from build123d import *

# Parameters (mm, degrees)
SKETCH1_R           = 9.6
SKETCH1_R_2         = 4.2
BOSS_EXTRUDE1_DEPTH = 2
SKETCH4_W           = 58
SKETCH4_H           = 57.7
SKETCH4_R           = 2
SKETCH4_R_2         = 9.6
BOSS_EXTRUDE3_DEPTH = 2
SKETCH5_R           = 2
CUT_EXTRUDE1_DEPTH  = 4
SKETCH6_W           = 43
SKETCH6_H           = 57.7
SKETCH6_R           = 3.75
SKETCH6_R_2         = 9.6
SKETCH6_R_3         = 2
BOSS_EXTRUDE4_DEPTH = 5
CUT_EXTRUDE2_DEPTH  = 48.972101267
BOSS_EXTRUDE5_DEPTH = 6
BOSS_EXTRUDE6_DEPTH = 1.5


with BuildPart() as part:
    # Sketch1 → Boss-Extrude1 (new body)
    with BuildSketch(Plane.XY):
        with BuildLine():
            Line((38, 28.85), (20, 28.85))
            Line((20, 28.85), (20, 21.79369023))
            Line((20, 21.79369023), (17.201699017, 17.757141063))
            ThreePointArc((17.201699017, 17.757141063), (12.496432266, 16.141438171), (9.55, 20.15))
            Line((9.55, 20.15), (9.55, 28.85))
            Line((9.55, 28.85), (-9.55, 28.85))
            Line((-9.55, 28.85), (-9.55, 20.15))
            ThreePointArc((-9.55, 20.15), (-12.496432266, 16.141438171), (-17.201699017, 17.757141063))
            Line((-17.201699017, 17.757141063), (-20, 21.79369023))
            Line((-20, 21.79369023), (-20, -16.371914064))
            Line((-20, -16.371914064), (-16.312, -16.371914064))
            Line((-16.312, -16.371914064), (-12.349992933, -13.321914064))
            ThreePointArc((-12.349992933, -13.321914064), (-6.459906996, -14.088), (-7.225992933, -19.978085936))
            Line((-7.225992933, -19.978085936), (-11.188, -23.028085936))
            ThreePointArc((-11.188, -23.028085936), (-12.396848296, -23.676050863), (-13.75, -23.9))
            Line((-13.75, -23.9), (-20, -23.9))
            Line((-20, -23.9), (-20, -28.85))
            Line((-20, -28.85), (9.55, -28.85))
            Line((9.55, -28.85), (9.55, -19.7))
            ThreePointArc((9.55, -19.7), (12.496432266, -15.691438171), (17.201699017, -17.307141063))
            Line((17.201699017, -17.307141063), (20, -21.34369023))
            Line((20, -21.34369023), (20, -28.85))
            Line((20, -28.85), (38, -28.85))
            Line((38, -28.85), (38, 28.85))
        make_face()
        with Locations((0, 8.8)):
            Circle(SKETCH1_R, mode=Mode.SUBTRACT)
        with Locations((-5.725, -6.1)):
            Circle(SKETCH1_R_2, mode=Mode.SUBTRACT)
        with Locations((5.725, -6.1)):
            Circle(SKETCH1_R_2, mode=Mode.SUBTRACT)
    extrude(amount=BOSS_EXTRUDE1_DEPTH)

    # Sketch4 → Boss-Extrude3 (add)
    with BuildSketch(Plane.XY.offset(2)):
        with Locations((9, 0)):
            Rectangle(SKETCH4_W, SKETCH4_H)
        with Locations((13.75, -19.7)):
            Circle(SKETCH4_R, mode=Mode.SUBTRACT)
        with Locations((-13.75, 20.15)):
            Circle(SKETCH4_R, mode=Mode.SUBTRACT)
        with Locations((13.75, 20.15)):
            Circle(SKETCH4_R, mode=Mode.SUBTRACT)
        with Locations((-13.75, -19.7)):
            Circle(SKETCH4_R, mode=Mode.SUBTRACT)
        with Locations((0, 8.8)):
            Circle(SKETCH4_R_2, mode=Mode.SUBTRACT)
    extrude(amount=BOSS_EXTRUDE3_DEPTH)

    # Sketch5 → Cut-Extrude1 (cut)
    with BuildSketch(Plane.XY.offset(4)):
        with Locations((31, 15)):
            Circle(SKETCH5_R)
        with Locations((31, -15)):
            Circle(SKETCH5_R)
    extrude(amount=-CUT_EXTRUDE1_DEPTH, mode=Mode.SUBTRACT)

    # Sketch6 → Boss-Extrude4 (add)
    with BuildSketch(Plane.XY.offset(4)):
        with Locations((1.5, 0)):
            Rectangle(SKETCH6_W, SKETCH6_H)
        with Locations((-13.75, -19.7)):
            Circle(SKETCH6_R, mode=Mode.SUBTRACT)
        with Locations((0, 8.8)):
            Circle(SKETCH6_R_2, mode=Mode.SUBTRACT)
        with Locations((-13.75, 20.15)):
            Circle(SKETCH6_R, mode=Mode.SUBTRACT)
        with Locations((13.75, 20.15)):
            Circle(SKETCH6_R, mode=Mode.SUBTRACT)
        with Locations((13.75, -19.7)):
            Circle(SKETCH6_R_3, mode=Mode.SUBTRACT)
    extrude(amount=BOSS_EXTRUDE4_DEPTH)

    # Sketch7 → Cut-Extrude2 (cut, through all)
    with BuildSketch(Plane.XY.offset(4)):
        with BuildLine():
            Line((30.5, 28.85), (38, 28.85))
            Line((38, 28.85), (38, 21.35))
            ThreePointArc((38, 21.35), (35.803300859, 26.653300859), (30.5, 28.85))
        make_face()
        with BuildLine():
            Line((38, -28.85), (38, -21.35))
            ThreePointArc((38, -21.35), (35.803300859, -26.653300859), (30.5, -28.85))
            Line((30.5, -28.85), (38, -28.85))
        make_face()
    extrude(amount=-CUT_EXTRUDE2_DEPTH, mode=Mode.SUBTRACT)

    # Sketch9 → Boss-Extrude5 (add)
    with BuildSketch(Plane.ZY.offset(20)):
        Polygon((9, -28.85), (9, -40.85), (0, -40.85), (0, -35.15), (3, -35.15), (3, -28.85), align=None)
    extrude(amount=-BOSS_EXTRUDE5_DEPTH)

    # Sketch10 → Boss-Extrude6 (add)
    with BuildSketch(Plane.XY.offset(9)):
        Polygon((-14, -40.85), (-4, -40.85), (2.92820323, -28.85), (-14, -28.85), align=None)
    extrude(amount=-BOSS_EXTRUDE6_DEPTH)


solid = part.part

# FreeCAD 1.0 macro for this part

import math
import FreeCAD as App
import Part
import Sketcher

V = App.Vector
Q = App.Units.Quantity

doc = App.newDocument("Part")
params = doc.addObject("Spreadsheet::Sheet", "Params")
for row, (alias, value) in enumerate([
    ("sketch1_diameter", "8.4 mm"),
    ("sketch1_diameter2", "19.2 mm"),
    ("sketch1_width", "18 mm"),
    ("sketch1_length", "5 mm"),
    ("sketch1_width2", "19.1 mm"),
    ("pad1_length", "2 mm"),
    ("sketch2_diameter", "4 mm"),
    ("sketch2_diameter2", "19.2 mm"),
    ("sketch2_width", "58 mm"),
    ("sketch2_height", "57.7 mm"),
    ("pad2_length", "2 mm"),
    ("sketch3_diameter", "4 mm"),
    ("pocket1_length", "4 mm"),
    ("sketch4_diameter", "4 mm"),
    ("sketch4_diameter2", "7.5 mm"),
    ("sketch4_diameter3", "19.2 mm"),
    ("sketch4_width", "43 mm"),
    ("sketch4_height", "57.7 mm"),
    ("pad3_length", "5 mm"),
    ("sketch5_radius", "7.5 mm"),
    ("sketch6_width", "12 mm"),
    ("sketch6_height", "6 mm"),
    ("sketch6_height2", "3 mm"),
    ("sketch6_width2", "6.3 mm"),
    ("pad4_length", "6 mm"),
    ("sketch7_width", "10 mm"),
    ("sketch7_height", "12 mm"),
    ("pad5_length", "1.5 mm"),
], start=1):
    params.set(f"A{row}", alias)
    params.set(f"B{row}", "=" + value)
    params.setAlias(f"B{row}", alias)

body = doc.addObject("PartDesign::Body", "Body")

sketch1 = body.newObject("Sketcher::SketchObject", "Sketch")
sketch1.AttachmentSupport = (doc.getObject("XY_Plane"), [""])
sketch1.MapMode = "FlatFace"
sketch1.addGeometry([
    Part.LineSegment(V(38, 28.85, 0), V(20, 28.85, 0)),
    Part.LineSegment(V(20, 28.85, 0), V(20, 21.79369, 0)),
    Part.LineSegment(V(20, 21.79369, 0), V(17.201699, 17.757141, 0)),
    Part.ArcOfCircle(Part.Circle(V(13.75, 20.15, 0), V(0, 0, 1), 4.2), math.radians(180), math.radians(325.268717)),
    Part.LineSegment(V(9.55, 20.15, 0), V(9.55, 28.85, 0)),
    Part.LineSegment(V(9.55, 28.85, 0), V(-9.55, 28.85, 0)),
    Part.LineSegment(V(-9.55, 28.85, 0), V(-9.55, 20.15, 0)),
    Part.ArcOfCircle(Part.Circle(V(-13.75, 20.15, 0), V(0, 0, 1), 4.2), math.radians(-145.268717), math.radians(0)),
    Part.LineSegment(V(-17.201699, 17.757141, 0), V(-20, 21.79369, 0)),
    Part.LineSegment(V(-20, 21.79369, 0), V(-20, -16.371914, 0)),
    Part.LineSegment(V(-20, -16.371914, 0), V(-16.312, -16.371914, 0)),
    Part.LineSegment(V(-16.312, -16.371914, 0), V(-12.349993, -13.321914, 0)),
    Part.ArcOfCircle(Part.Circle(V(-9.787993, -16.65, 0), V(0, 0, 1), 4.2), math.radians(-52.410497), math.radians(127.589503)),
    Part.LineSegment(V(-7.225993, -19.978086, 0), V(-11.188, -23.028086, 0)),
    Part.ArcOfCircle(Part.Circle(V(-13.75, -19.7, 0), V(0, 0, 1), 4.2), math.radians(-90), math.radians(-52.410497)),
    Part.LineSegment(V(-13.75, -23.9, 0), V(-20, -23.9, 0)),
    Part.LineSegment(V(-20, -23.9, 0), V(-20, -28.85, 0)),
    Part.LineSegment(V(-20, -28.85, 0), V(9.55, -28.85, 0)),
    Part.LineSegment(V(9.55, -28.85, 0), V(9.55, -19.7, 0)),
    Part.ArcOfCircle(Part.Circle(V(13.75, -19.7, 0), V(0, 0, 1), 4.2), math.radians(34.731283), math.radians(180)),
    Part.LineSegment(V(17.201699, -17.307141, 0), V(20, -21.34369, 0)),
    Part.LineSegment(V(20, -21.34369, 0), V(20, -28.85, 0)),
    Part.LineSegment(V(20, -28.85, 0), V(38, -28.85, 0)),
    Part.LineSegment(V(38, -28.85, 0), V(38, 28.85, 0)),
    Part.Circle(V(-5.725, -6.1, 0), V(0, 0, 1), 4.2),
    Part.Circle(V(5.725, -6.1, 0), V(0, 0, 1), 4.2),
    Part.Circle(V(0, 8.8, 0), V(0, 0, 1), 9.6),
], False)
sketch1.addConstraint([
    Sketcher.Constraint("Coincident", 0, 2, 1, 1),
    Sketcher.Constraint("Coincident", 1, 2, 2, 1),
    Sketcher.Constraint("Tangent", 2, 2, 3, 2),
    Sketcher.Constraint("Tangent", 3, 1, 4, 1),
    Sketcher.Constraint("Coincident", 4, 2, 5, 1),
    Sketcher.Constraint("Coincident", 5, 2, 6, 1),
    Sketcher.Constraint("Tangent", 6, 2, 7, 2),
    Sketcher.Constraint("Tangent", 7, 1, 8, 1),
    Sketcher.Constraint("Coincident", 8, 2, 9, 1),
    Sketcher.Constraint("Coincident", 9, 2, 10, 1),
    Sketcher.Constraint("Coincident", 10, 2, 11, 1),
    Sketcher.Constraint("Tangent", 11, 2, 12, 2),
    Sketcher.Constraint("Tangent", 12, 1, 13, 1),
    Sketcher.Constraint("Tangent", 13, 2, 14, 2),
    Sketcher.Constraint("Tangent", 14, 1, 15, 1),
    Sketcher.Constraint("Coincident", 15, 2, 16, 1),
    Sketcher.Constraint("Coincident", 16, 2, 17, 1),
    Sketcher.Constraint("Coincident", 17, 2, 18, 1),
    Sketcher.Constraint("Tangent", 18, 2, 19, 2),
    Sketcher.Constraint("Tangent", 19, 1, 20, 1),
    Sketcher.Constraint("Coincident", 20, 2, 21, 1),
    Sketcher.Constraint("Coincident", 21, 2, 22, 1),
    Sketcher.Constraint("Coincident", 22, 2, 23, 1),
    Sketcher.Constraint("Coincident", 23, 2, 0, 1),
    Sketcher.Constraint("Horizontal", 0),
    Sketcher.Constraint("Vertical", 1),
    Sketcher.Constraint("Vertical", 4),
    Sketcher.Constraint("Horizontal", 5),
    Sketcher.Constraint("Vertical", 6),
    Sketcher.Constraint("Vertical", 9),
    Sketcher.Constraint("Horizontal", 10),
    Sketcher.Constraint("Horizontal", 15),
    Sketcher.Constraint("Vertical", 16),
    Sketcher.Constraint("Horizontal", 17),
    Sketcher.Constraint("Vertical", 18),
    Sketcher.Constraint("Vertical", 21),
    Sketcher.Constraint("Horizontal", 22),
    Sketcher.Constraint("Vertical", 23),
    Sketcher.Constraint("Equal", 3, 7),
    Sketcher.Constraint("Equal", 7, 12),
    Sketcher.Constraint("Equal", 12, 14),
    Sketcher.Constraint("Equal", 14, 19),
    Sketcher.Constraint("Equal", 19, 24),
    Sketcher.Constraint("Equal", 24, 25),
    Sketcher.Constraint("Symmetric", 0, 2, 16, 2, -1, 1),
    Sketcher.Constraint("Symmetric", 5, 2, 17, 2, -1, 1),
    Sketcher.Constraint("Symmetric", 3, 3, 7, 3, -2),
    Sketcher.Constraint("Symmetric", 14, 3, 19, 3, -2),
    Sketcher.Constraint("Symmetric", 24, 3, 25, 3, -2),
    Sketcher.Constraint("Symmetric", 1, 2, 8, 2, -2),
    Sketcher.Constraint("Symmetric", 16, 2, 21, 2, -2),
    Sketcher.Constraint("PointOnObject", 26, 3, -2),
    Sketcher.Constraint("Parallel", 11, 13),
    Sketcher.Constraint("Parallel", 8, 20),
    Sketcher.Constraint("Equal", 11, 13),
    Sketcher.Constraint("Diameter", 24, 8.4),
    Sketcher.Constraint("Diameter", 26, 19.2),
    Sketcher.Constraint("DistanceX", 0, 2, 0, 1, 18.0),
    Sketcher.Constraint("Distance", 11, 5.0),
    Sketcher.Constraint("DistanceX", 5, 2, 5, 1, 19.1),
    Sketcher.Constraint("DistanceY", 4, 1, 4, 2, 8.7),
    Sketcher.Constraint("DistanceY", 23, 1, 23, 2, 57.7),
    Sketcher.Constraint("DistanceX", -1, 1, 0, 2, 20.0),
    Sketcher.Constraint("DistanceY", 16, 2, 16, 1, 4.95),
    Sketcher.Constraint("DistanceY", 24, 3, -1, 1, 6.1),
    Sketcher.Constraint("DistanceY", -1, 1, 26, 3, 8.8),
    Sketcher.Constraint("DistanceY", 12, 3, 7, 3, 36.8),
    Sketcher.Constraint("DistanceX", 24, 3, 25, 3, 11.45),
    Sketcher.Constraint("DistanceY", 1, 2, 1, 1, 7.05631),
])
sketch1.setExpression("Constraints[55]", "Params.sketch1_diameter")
sketch1.setExpression("Constraints[56]", "Params.sketch1_diameter2")
sketch1.setExpression("Constraints[57]", "Params.sketch1_width")
sketch1.setExpression("Constraints[58]", "Params.sketch1_length")
sketch1.setExpression("Constraints[59]", "Params.sketch1_width2")
pad1 = body.newObject("PartDesign::Pad", "Pad")
pad1.Profile = sketch1
pad1.setExpression("Length", "Params.pad1_length")

sketch2 = body.newObject("Sketcher::SketchObject", "Sketch001")
sketch2.AttachmentSupport = (doc.getObject("XY_Plane"), [""])
sketch2.MapMode = "FlatFace"
sketch2.AttachmentOffset = App.Placement(V(0, 0, 2), App.Rotation())
sketch2.addGeometry([
    Part.LineSegment(V(-20, 28.85, 0), V(-20, -28.85, 0)),
    Part.LineSegment(V(-20, -28.85, 0), V(38, -28.85, 0)),
    Part.LineSegment(V(38, -28.85, 0), V(38, 28.85, 0)),
    Part.LineSegment(V(38, 28.85, 0), V(-20, 28.85, 0)),
    Part.Circle(V(-13.75, -19.7, 0), V(0, 0, 1), 2),
    Part.Circle(V(13.75, -19.7, 0), V(0, 0, 1), 2),
    Part.Circle(V(-13.75, 20.15, 0), V(0, 0, 1), 2),
    Part.Circle(V(0, 8.8, 0), V(0, 0, 1), 9.6),
    Part.Circle(V(13.75, 20.15, 0), V(0, 0, 1), 2),
], False)
sketch2.addConstraint([
    Sketcher.Constraint("Coincident", 0, 2, 1, 1),
    Sketcher.Constraint("Coincident", 1, 2, 2, 1),
    Sketcher.Constraint("Coincident", 2, 2, 3, 1),
    Sketcher.Constraint("Coincident", 3, 2, 0, 1),
    Sketcher.Constraint("Vertical", 0),
    Sketcher.Constraint("Horizontal", 1),
    Sketcher.Constraint("Vertical", 2),
    Sketcher.Constraint("Horizontal", 3),
    Sketcher.Constraint("Equal", 4, 5),
    Sketcher.Constraint("Equal", 5, 6),
    Sketcher.Constraint("Equal", 6, 8),
    Sketcher.Constraint("Symmetric", 4, 3, 5, 3, -2),
    Sketcher.Constraint("Symmetric", 6, 3, 8, 3, -2),
    Sketcher.Constraint("PointOnObject", 7, 3, -2),
    Sketcher.Constraint("Vertical", 4, 3, 6, 3),
    Sketcher.Constraint("Diameter", 4, 4.0),
    Sketcher.Constraint("Diameter", 7, 19.2),
    Sketcher.Constraint("DistanceX", 1, 1, 1, 2, 58.0),
    Sketcher.Constraint("DistanceY", 0, 2, 0, 1, 57.7),
    Sketcher.Constraint("DistanceX", 0, 2, -1, 1, 20.0),
    Sketcher.Constraint("DistanceY", 0, 2, 6, 3, 49.0),
    Sketcher.Constraint("DistanceY", 4, 3, -1, 1, 19.7),
    Sketcher.Constraint("DistanceY", -1, 1, 7, 3, 8.8),
    Sketcher.Constraint("DistanceX", 4, 3, 5, 3, 27.5),
    Sketcher.Constraint("DistanceY", -1, 1, 6, 3, 20.15),
])
sketch2.setExpression("Constraints[15]", "Params.sketch2_diameter")
sketch2.setExpression("Constraints[16]", "Params.sketch2_diameter2")
sketch2.setExpression("Constraints[17]", "Params.sketch2_width")
sketch2.setExpression("Constraints[18]", "Params.sketch2_height")
pad2 = body.newObject("PartDesign::Pad", "Pad001")
pad2.Profile = sketch2
pad2.setExpression("Length", "Params.pad2_length")

sketch3 = body.newObject("Sketcher::SketchObject", "Sketch002")
sketch3.AttachmentSupport = (doc.getObject("XY_Plane"), [""])
sketch3.MapMode = "FlatFace"
sketch3.AttachmentOffset = App.Placement(V(0, 0, 4), App.Rotation())
sketch3.addGeometry([
    Part.Circle(V(31, 15, 0), V(0, 0, 1), 2),
    Part.Circle(V(31, -15, 0), V(0, 0, 1), 2),
], False)
sketch3.addConstraint([
    Sketcher.Constraint("Equal", 0, 1),
    Sketcher.Constraint("Symmetric", 0, 3, 1, 3, -1),
    Sketcher.Constraint("Diameter", 0, 4.0),
    Sketcher.Constraint("DistanceX", -1, 1, 0, 3, 31.0),
    Sketcher.Constraint("DistanceY", -1, 1, 0, 3, 15.0),
])
sketch3.setExpression("Constraints[2]", "Params.sketch3_diameter")
pocket1 = body.newObject("PartDesign::Pocket", "Pocket")
pocket1.Profile = sketch3
pocket1.setExpression("Length", "Params.pocket1_length")

sketch4 = body.newObject("Sketcher::SketchObject", "Sketch003")
sketch4.AttachmentSupport = (doc.getObject("XY_Plane"), [""])
sketch4.MapMode = "FlatFace"
sketch4.AttachmentOffset = App.Placement(V(0, 0, 4), App.Rotation())
sketch4.addGeometry([
    Part.LineSegment(V(-20, 28.85, 0), V(-20, -28.85, 0)),
    Part.LineSegment(V(-20, -28.85, 0), V(23, -28.85, 0)),
    Part.LineSegment(V(23, -28.85, 0), V(23, 28.85, 0)),
    Part.LineSegment(V(23, 28.85, 0), V(-20, 28.85, 0)),
    Part.Circle(V(-13.75, -19.7, 0), V(0, 0, 1), 3.75),
    Part.Circle(V(13.75, -19.7, 0), V(0, 0, 1), 2),
    Part.Circle(V(-13.75, 20.15, 0), V(0, 0, 1), 3.75),
    Part.Circle(V(0, 8.8, 0), V(0, 0, 1), 9.6),
    Part.Circle(V(13.75, 20.15, 0), V(0, 0, 1), 3.75),
], False)
sketch4.addConstraint([
    Sketcher.Constraint("Coincident", 0, 2, 1, 1),
    Sketcher.Constraint("Coincident", 1, 2, 2, 1),
    Sketcher.Constraint("Coincident", 2, 2, 3, 1),
    Sketcher.Constraint("Coincident", 3, 2, 0, 1),
    Sketcher.Constraint("Vertical", 0),
    Sketcher.Constraint("Horizontal", 1),
    Sketcher.Constraint("Vertical", 2),
    Sketcher.Constraint("Horizontal", 3),
    Sketcher.Constraint("Equal", 4, 6),
    Sketcher.Constraint("Equal", 6, 8),
    Sketcher.Constraint("Symmetric", 4, 3, 5, 3, -2),
    Sketcher.Constraint("Symmetric", 6, 3, 8, 3, -2),
    Sketcher.Constraint("PointOnObject", 7, 3, -2),
    Sketcher.Constraint("Vertical", 4, 3, 6, 3),
    Sketcher.Constraint("Diameter", 5, 4.0),
    Sketcher.Constraint("Diameter", 4, 7.5),
    Sketcher.Constraint("Diameter", 7, 19.2),
    Sketcher.Constraint("DistanceX", 1, 1, 1, 2, 43.0),
    Sketcher.Constraint("DistanceY", 0, 2, 0, 1, 57.7),
    Sketcher.Constraint("DistanceX", 0, 2, -1, 1, 20.0),
    Sketcher.Constraint("DistanceY", 0, 2, 6, 3, 49.0),
    Sketcher.Constraint("DistanceY", 4, 3, -1, 1, 19.7),
    Sketcher.Constraint("DistanceY", -1, 1, 7, 3, 8.8),
    Sketcher.Constraint("DistanceX", 4, 3, 5, 3, 27.5),
    Sketcher.Constraint("DistanceY", -1, 1, 6, 3, 20.15),
])
sketch4.setExpression("Constraints[14]", "Params.sketch4_diameter")
sketch4.setExpression("Constraints[15]", "Params.sketch4_diameter2")
sketch4.setExpression("Constraints[16]", "Params.sketch4_diameter3")
sketch4.setExpression("Constraints[17]", "Params.sketch4_width")
sketch4.setExpression("Constraints[18]", "Params.sketch4_height")
pad3 = body.newObject("PartDesign::Pad", "Pad002")
pad3.Profile = sketch4
pad3.setExpression("Length", "Params.pad3_length")

sketch5 = body.newObject("Sketcher::SketchObject", "Sketch004")
sketch5.AttachmentSupport = (doc.getObject("XY_Plane"), [""])
sketch5.MapMode = "FlatFace"
sketch5.AttachmentOffset = App.Placement(V(0, 0, 4), App.Rotation())
sketch5.addGeometry([
    Part.LineSegment(V(38, 28.85, 0), V(30.5, 28.85, 0)),
    Part.ArcOfCircle(Part.Circle(V(30.5, 21.35, 0), V(0, 0, 1), 7.5), math.radians(0), math.radians(90)),
    Part.LineSegment(V(38, 21.35, 0), V(38, 28.85, 0)),
    Part.LineSegment(V(38, -28.85, 0), V(38, -21.35, 0)),
    Part.ArcOfCircle(Part.Circle(V(30.5, -21.35, 0), V(0, 0, 1), 7.5), math.radians(-90), math.radians(0)),
    Part.LineSegment(V(30.5, -28.85, 0), V(38, -28.85, 0)),
], False)
sketch5.addConstraint([
    Sketcher.Constraint("Tangent", 0, 2, 1, 2),
    Sketcher.Constraint("Tangent", 1, 1, 2, 1),
    Sketcher.Constraint("Coincident", 2, 2, 0, 1),
    Sketcher.Constraint("Tangent", 3, 2, 4, 2),
    Sketcher.Constraint("Tangent", 4, 1, 5, 1),
    Sketcher.Constraint("Coincident", 5, 2, 3, 1),
    Sketcher.Constraint("Horizontal", 0),
    Sketcher.Constraint("Vertical", 2),
    Sketcher.Constraint("Vertical", 3),
    Sketcher.Constraint("Horizontal", 5),
    Sketcher.Constraint("Equal", 1, 4),
    Sketcher.Constraint("Symmetric", 1, 3, 4, 3, -1),
    Sketcher.Constraint("Radius", 1, 7.5),
    Sketcher.Constraint("DistanceX", -1, 1, 1, 1, 38.0),
    Sketcher.Constraint("DistanceY", 4, 3, 1, 3, 42.7),
])
sketch5.setExpression("Constraints[12]", "Params.sketch5_radius")
pocket2 = body.newObject("PartDesign::Pocket", "Pocket001")
pocket2.Profile = sketch5
pocket2.Type = "ThroughAll"

sketch6 = body.newObject("Sketcher::SketchObject", "Sketch005")
sketch6.AttachmentSupport = (doc.getObject("YZ_Plane"), [""])
sketch6.MapMode = "FlatFace"
sketch6.AttachmentOffset = App.Placement(V(0, 0, -20), App.Rotation())
sketch6.addGeometry([
    Part.LineSegment(V(-40.85, 9, 0), V(-28.85, 9, 0)),
    Part.LineSegment(V(-28.85, 9, 0), V(-28.85, 3, 0)),
    Part.LineSegment(V(-28.85, 3, 0), V(-35.15, 3, 0)),
    Part.LineSegment(V(-35.15, 3, 0), V(-35.15, 0, 0)),
    Part.LineSegment(V(-35.15, 0, 0), V(-40.85, 0, 0)),
    Part.LineSegment(V(-40.85, 0, 0), V(-40.85, 9, 0)),
], False)
sketch6.addConstraint([
    Sketcher.Constraint("Coincident", 0, 2, 1, 1),
    Sketcher.Constraint("Coincident", 1, 2, 2, 1),
    Sketcher.Constraint("Coincident", 2, 2, 3, 1),
    Sketcher.Constraint("Coincident", 3, 2, 4, 1),
    Sketcher.Constraint("Coincident", 4, 2, 5, 1),
    Sketcher.Constraint("Coincident", 5, 2, 0, 1),
    Sketcher.Constraint("Horizontal", 0),
    Sketcher.Constraint("Vertical", 1),
    Sketcher.Constraint("Horizontal", 2),
    Sketcher.Constraint("Vertical", 3),
    Sketcher.Constraint("Horizontal", 4),
    Sketcher.Constraint("Vertical", 5),
    Sketcher.Constraint("PointOnObject", 3, 2, -1),
    Sketcher.Constraint("DistanceX", 0, 1, 0, 2, 12.0),
    Sketcher.Constraint("DistanceY", 1, 2, 1, 1, 6.0),
    Sketcher.Constraint("DistanceY", 3, 2, 3, 1, 3.0),
    Sketcher.Constraint("DistanceX", 2, 2, 2, 1, 6.3),
    Sketcher.Constraint("DistanceX", 0, 2, -1, 1, 28.85),
])
sketch6.setExpression("Constraints[13]", "Params.sketch6_width")
sketch6.setExpression("Constraints[14]", "Params.sketch6_height")
sketch6.setExpression("Constraints[15]", "Params.sketch6_height2")
sketch6.setExpression("Constraints[16]", "Params.sketch6_width2")
pad4 = body.newObject("PartDesign::Pad", "Pad003")
pad4.Profile = sketch6
pad4.setExpression("Length", "Params.pad4_length")

sketch7 = body.newObject("Sketcher::SketchObject", "Sketch006")
sketch7.AttachmentSupport = (doc.getObject("XY_Plane"), [""])
sketch7.MapMode = "FlatFace"
sketch7.AttachmentOffset = App.Placement(V(0, 0, 9), App.Rotation())
sketch7.addGeometry([
    Part.LineSegment(V(-14, -40.85, 0), V(-4, -40.85, 0)),
    Part.LineSegment(V(-4, -40.85, 0), V(2.928203, -28.85, 0)),
    Part.LineSegment(V(2.928203, -28.85, 0), V(-14, -28.85, 0)),
    Part.LineSegment(V(-14, -28.85, 0), V(-14, -40.85, 0)),
], False)
sketch7.addConstraint([
    Sketcher.Constraint("Coincident", 0, 2, 1, 1),
    Sketcher.Constraint("Coincident", 1, 2, 2, 1),
    Sketcher.Constraint("Coincident", 2, 2, 3, 1),
    Sketcher.Constraint("Coincident", 3, 2, 0, 1),
    Sketcher.Constraint("Horizontal", 0),
    Sketcher.Constraint("Horizontal", 2),
    Sketcher.Constraint("Vertical", 3),
    Sketcher.Constraint("DistanceX", 0, 1, 0, 2, 10.0),
    Sketcher.Constraint("DistanceY", 3, 2, 3, 1, 12.0),
    Sketcher.Constraint("Angle", 1, Q("60 deg")),
    Sketcher.Constraint("DistanceX", 0, 2, -1, 1, 4.0),
    Sketcher.Constraint("DistanceY", 0, 2, -1, 1, 40.85),
])
sketch7.setExpression("Constraints[7]", "Params.sketch7_width")
sketch7.setExpression("Constraints[8]", "Params.sketch7_height")
pad5 = body.newObject("PartDesign::Pad", "Pad004")
pad5.Profile = sketch7
pad5.setExpression("Length", "Params.pad5_length")
pad5.Reversed = True

doc.recompute()
